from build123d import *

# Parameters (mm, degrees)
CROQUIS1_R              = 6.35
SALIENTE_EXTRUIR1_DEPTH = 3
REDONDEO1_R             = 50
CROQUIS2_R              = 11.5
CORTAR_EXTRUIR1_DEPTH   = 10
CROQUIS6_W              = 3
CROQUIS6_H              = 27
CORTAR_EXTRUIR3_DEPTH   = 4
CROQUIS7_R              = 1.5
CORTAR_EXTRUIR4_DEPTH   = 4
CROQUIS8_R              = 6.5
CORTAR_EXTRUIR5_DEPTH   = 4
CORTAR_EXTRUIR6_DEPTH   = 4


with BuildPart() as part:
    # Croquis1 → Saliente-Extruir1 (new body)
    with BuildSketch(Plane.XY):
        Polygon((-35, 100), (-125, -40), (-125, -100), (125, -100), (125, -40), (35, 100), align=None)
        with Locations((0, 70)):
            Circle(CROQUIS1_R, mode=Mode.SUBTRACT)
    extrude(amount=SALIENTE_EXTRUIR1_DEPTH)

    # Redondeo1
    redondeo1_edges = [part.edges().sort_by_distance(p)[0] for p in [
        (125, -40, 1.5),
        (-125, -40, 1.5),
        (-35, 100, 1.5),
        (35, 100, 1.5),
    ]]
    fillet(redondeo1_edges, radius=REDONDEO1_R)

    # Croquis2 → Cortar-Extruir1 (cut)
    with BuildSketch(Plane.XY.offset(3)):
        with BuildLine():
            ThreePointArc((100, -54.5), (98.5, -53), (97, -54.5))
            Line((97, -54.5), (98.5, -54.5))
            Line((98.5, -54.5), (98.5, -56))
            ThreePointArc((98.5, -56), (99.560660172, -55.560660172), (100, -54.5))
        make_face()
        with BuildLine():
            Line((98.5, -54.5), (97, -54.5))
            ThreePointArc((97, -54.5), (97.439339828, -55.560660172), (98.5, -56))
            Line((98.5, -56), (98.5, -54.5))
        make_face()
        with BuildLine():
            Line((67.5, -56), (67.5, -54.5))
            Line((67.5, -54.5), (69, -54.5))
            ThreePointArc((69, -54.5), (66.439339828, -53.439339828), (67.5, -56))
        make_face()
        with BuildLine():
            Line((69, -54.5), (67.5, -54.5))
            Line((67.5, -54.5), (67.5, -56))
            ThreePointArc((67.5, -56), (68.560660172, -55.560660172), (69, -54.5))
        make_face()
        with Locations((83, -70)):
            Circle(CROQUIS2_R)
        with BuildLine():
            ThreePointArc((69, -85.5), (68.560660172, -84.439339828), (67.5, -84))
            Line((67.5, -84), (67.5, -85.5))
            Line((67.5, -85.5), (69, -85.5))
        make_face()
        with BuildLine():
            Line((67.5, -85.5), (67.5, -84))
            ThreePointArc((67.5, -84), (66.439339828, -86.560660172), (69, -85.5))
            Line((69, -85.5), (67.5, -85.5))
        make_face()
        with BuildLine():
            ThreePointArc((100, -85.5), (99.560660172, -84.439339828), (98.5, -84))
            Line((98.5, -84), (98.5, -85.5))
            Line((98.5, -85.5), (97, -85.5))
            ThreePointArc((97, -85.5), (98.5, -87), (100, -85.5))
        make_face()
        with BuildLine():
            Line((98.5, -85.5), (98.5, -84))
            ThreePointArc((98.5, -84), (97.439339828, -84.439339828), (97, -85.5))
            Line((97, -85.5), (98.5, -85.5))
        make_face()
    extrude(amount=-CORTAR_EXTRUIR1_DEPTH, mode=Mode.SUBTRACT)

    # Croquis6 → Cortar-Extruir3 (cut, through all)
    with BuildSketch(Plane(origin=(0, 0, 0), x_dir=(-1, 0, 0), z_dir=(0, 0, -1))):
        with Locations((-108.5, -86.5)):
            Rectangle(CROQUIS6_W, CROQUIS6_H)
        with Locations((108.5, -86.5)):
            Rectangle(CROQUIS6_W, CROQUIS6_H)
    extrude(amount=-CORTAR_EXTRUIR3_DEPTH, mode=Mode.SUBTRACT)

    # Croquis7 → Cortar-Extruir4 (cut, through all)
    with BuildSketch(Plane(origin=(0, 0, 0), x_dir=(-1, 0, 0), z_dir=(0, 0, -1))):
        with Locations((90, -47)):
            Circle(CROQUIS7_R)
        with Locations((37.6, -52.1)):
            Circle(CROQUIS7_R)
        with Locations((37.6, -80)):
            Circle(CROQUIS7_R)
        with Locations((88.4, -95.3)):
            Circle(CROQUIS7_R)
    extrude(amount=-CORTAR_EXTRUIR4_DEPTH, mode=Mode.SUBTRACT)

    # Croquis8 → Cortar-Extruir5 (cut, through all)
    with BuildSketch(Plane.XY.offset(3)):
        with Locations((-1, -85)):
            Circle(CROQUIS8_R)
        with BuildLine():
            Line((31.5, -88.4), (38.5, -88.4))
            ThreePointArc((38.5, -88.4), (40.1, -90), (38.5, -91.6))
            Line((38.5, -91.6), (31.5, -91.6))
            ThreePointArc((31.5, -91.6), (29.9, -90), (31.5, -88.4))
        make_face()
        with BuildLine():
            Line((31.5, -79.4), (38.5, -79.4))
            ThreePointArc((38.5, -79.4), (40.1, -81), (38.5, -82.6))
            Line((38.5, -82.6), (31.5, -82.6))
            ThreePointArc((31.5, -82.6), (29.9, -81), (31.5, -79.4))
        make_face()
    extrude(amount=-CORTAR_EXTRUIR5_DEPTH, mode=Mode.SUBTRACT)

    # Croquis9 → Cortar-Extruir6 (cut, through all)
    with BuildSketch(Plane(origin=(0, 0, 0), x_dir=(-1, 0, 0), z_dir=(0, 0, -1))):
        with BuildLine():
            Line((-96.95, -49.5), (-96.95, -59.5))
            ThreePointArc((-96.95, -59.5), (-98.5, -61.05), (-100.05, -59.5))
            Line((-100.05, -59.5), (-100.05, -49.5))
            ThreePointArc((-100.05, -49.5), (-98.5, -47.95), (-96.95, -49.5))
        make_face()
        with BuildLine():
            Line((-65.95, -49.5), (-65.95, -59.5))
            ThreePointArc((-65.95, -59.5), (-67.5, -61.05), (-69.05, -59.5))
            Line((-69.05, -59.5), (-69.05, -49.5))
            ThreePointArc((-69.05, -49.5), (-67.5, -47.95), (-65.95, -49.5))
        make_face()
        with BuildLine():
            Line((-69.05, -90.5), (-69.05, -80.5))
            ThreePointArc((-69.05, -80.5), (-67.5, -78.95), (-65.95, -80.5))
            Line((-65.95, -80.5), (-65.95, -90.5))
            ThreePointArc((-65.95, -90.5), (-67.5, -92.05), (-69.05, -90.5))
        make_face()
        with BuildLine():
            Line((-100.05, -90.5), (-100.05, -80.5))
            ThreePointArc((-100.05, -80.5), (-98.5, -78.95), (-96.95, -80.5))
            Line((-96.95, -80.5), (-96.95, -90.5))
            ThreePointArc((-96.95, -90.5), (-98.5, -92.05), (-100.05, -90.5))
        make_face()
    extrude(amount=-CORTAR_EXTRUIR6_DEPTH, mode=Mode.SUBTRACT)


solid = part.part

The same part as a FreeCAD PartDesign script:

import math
import FreeCAD as App
import Part
import Sketcher
from FreeCAD import Vector


def edges_at(feature, points):
    """Names of the edges that pass closest to the given points."""
    edges = feature.Shape.Edges
    near = lambda p: min(range(len(edges)), key=lambda i: edges[i].distToShape(Part.Vertex(*p))[0])
    return sorted({f"Edge{near(p) + 1}" for p in points})


def add_polygon(sketch, points):
    """Adds a closed chain of lines whose ends are joined by coincident constraints."""
    first, n = sketch.GeometryCount, len(points)
    for a, b in zip(points, points[1:] + points[:1]):
        sketch.addGeometry(Part.LineSegment(App.Vector(*a, 0), App.Vector(*b, 0)), False)
    for i in range(n):
        sketch.addConstraint(Sketcher.Constraint("Coincident", first + i, 2, first + (i + 1) % n, 1))

doc = App.newDocument("Part")
body = doc.addObject("PartDesign::Body", "Body")

# Sketch on XY plane
sketch1 = body.newObject("Sketcher::SketchObject", "Sketch")
sketch1.AttachmentSupport = (doc.getObject("XY_Plane"), [""])
sketch1.MapMode = "FlatFace"
add_polygon(sketch1, [(-35, 100), (-125, -40), (-125, -100), (125, -100), (125, -40), (35, 100)])  # lines 0-5
sketch1.addGeometry(Part.Circle(Vector(0, 70, 0), Vector(0, 0, 1), 6), False)  # 6
sketch1.addConstraint(Sketcher.Constraint("Vertical", 1))
sketch1.addConstraint(Sketcher.Constraint("Horizontal", 2))
sketch1.addConstraint(Sketcher.Constraint("Vertical", 3))
sketch1.addConstraint(Sketcher.Constraint("Horizontal", 5))
sketch1.addConstraint(Sketcher.Constraint("Symmetric", 0, 2, 3, 2, -2))
sketch1.addConstraint(Sketcher.Constraint("PointOnObject", 6, 3, -2))
sketch1.addConstraint(Sketcher.Constraint("Equal", 0, 4))
sketch1.addConstraint(Sketcher.Constraint("Diameter", 6, 12.7))
sketch1.addConstraint(Sketcher.Constraint("DistanceX", 2, 1, 2, 2, 250.0))
sketch1.addConstraint(Sketcher.Constraint("DistanceX", 5, 2, 5, 1, 70.0))
sketch1.addConstraint(Sketcher.Constraint("DistanceY", 1, 2, 1, 1, 60.0))
sketch1.addConstraint(Sketcher.Constraint("DistanceY", -1, 1, 6, 3, 70.0))
sketch1.addConstraint(Sketcher.Constraint("DistanceY", 0, 2, -1, 1, 40.0))
sketch1.addConstraint(Sketcher.Constraint("DistanceY", -1, 1, 4, 2, 100.0))
pad1 = body.newObject("PartDesign::Pad", "Pad")
pad1.Profile = sketch1
pad1.Length = 3
doc.recompute()

fillet = body.newObject("PartDesign::Fillet", "Fillet")
fillet.Base = (pad1, edges_at(pad1, [
    (125, -40, 1.5),
    (-125, -40, 1.5),
    (-35, 100, 1.5),
    (35, 100, 1.5),
]))
fillet.Radius = 50

# Sketch on XY plane
sketch2 = body.newObject("Sketcher::SketchObject", "Sketch001")
sketch2.AttachmentSupport = (doc.getObject("XY_Plane"), [""])
sketch2.MapMode = "FlatFace"
sketch2.AttachmentOffset = App.Placement(Vector(0, 0, 3), App.Rotation())
sketch2.addGeometry(Part.ArcOfCircle(Part.Circle(Vector(98.5, -54.5, 0), Vector(0, 0, 1), 1.5), math.radians(0), math.radians(180)), False)
sketch2.addGeometry(Part.ArcOfCircle(Part.Circle(Vector(98.5, -54.5, 0), Vector(0, 0, 1), 1.5), math.radians(180), math.radians(270)), False)
sketch2.addGeometry(Part.ArcOfCircle(Part.Circle(Vector(98.5, -54.5, 0), Vector(0, 0, 1), 1.5), math.radians(-90), math.radians(0)), False)
sketch2.addGeometry(Part.ArcOfCircle(Part.Circle(Vector(67.5, -54.5, 0), Vector(0, 0, 1), 1.5), math.radians(0), math.radians(270)), False)
sketch2.addGeometry(Part.ArcOfCircle(Part.Circle(Vector(67.5, -54.5, 0), Vector(0, 0, 1), 1.5), math.radians(-90), math.radians(0)), False)
sketch2.addGeometry(Part.Circle(Vector(83, -70, 0), Vector(0, 0, 1), 11.5), False)
sketch2.addGeometry(Part.ArcOfCircle(Part.Circle(Vector(67.5, -85.5, 0), Vector(0, 0, 1), 1.5), math.radians(0), math.radians(90)), False)
sketch2.addGeometry(Part.ArcOfCircle(Part.Circle(Vector(67.5, -85.5, 0), Vector(0, 0, 1), 1.5), math.radians(90), math.radians(360)), False)
sketch2.addGeometry(Part.ArcOfCircle(Part.Circle(Vector(98.5, -85.5, 0), Vector(0, 0, 1), 1.5), math.radians(0), math.radians(90)), False)
sketch2.addGeometry(Part.ArcOfCircle(Part.Circle(Vector(98.5, -85.5, 0), Vector(0, 0, 1), 1.5), math.radians(90), math.radians(180)), False)
sketch2.addGeometry(Part.ArcOfCircle(Part.Circle(Vector(98.5, -85.5, 0), Vector(0, 0, 1), 1.5), math.radians(180), math.radians(360)), False)
sketch2.addConstraint(Sketcher.Constraint("Tangent", 0, 2, 1, 1))
sketch2.addConstraint(Sketcher.Constraint("Tangent", 1, 2, 2, 1))
sketch2.addConstraint(Sketcher.Constraint("Tangent", 2, 2, 0, 1))
sketch2.addConstraint(Sketcher.Constraint("Tangent", 3, 1, 4, 2))
sketch2.addConstraint(Sketcher.Constraint("Coincident", 4, 1, 3, 2))
sketch2.addConstraint(Sketcher.Constraint("Tangent", 6, 1, 7, 2))
sketch2.addConstraint(Sketcher.Constraint("Coincident", 7, 1, 6, 2))
sketch2.addConstraint(Sketcher.Constraint("Tangent", 8, 2, 9, 1))
sketch2.addConstraint(Sketcher.Constraint("Tangent", 9, 2, 10, 1))
sketch2.addConstraint(Sketcher.Constraint("Tangent", 10, 2, 8, 1))
sketch2.addConstraint(Sketcher.Constraint("Equal", 2, 3))
sketch2.addConstraint(Sketcher.Constraint("Equal", 4, 6))
sketch2.addConstraint(Sketcher.Constraint("Equal", 7, 8))
sketch2.addConstraint(Sketcher.Constraint("Horizontal", 2, 3, 3, 3))
sketch2.addConstraint(Sketcher.Constraint("Horizontal", 7, 3, 8, 3))
sketch2.addConstraint(Sketcher.Constraint("Horizontal", 4, 3, 0, 2))
sketch2.addConstraint(Sketcher.Constraint("Horizontal", 0, 2, 2, 2))
sketch2.addConstraint(Sketcher.Constraint("Horizontal", 2, 2, 3, 1))
sketch2.addConstraint(Sketcher.Constraint("Horizontal", 10, 3, 6, 1))
sketch2.addConstraint(Sketcher.Constraint("Horizontal", 6, 1, 9, 2))
sketch2.addConstraint(Sketcher.Constraint("Horizontal", 9, 2, 10, 2))
sketch2.addConstraint(Sketcher.Constraint("Vertical", 4, 3, 6, 3))
sketch2.addConstraint(Sketcher.Constraint("Vertical", 2, 3, 8, 3))
sketch2.addConstraint(Sketcher.Constraint("Vertical", 10, 3, 1, 2))
sketch2.addConstraint(Sketcher.Constraint("Vertical", 7, 3, 4, 1))
sketch2.addConstraint(Sketcher.Constraint("Vertical", 4, 1, 7, 1))
sketch2.addConstraint(Sketcher.Constraint("Vertical", 1, 2, 8, 2))
sketch2.addConstraint(Sketcher.Constraint("Diameter", 5, 23.0))
sketch2.addConstraint(Sketcher.Constraint("Radius", 0, 1.5))
sketch2.addConstraint(Sketcher.Constraint("DistanceX", -1, 1, 5, 3, 83.0))
sketch2.addConstraint(Sketcher.Constraint("DistanceY", 5, 3, -1, 1, 70.0))
sketch2.addConstraint(Sketcher.Constraint("DistanceX", -1, 1, 0, 2, 97.0))
sketch2.addConstraint(Sketcher.Constraint("DistanceY", 1, 2, -1, 1, 56.0))
sketch2.addConstraint(Sketcher.Constraint("DistanceX", -1, 1, 3, 1, 69.0))
sketch2.addConstraint(Sketcher.Constraint("DistanceY", 7, 1, -1, 1, 84.0))
pocket1 = body.newObject("PartDesign::Pocket", "Pocket")
pocket1.Profile = sketch2
pocket1.Length = 10

# Sketch on XY plane
sketch3 = body.newObject("Sketcher::SketchObject", "Sketch002")
sketch3.AttachmentSupport = (doc.getObject("XY_Plane"), [""])
sketch3.MapMode = "FlatFace"
add_polygon(sketch3, [(110, -73), (110, -100), (107, -100), (107, -73)])  # lines 0-3
add_polygon(sketch3, [(-107, -73), (-107, -100), (-110, -100), (-110, -73)])  # lines 4-7
sketch3.addConstraint(Sketcher.Constraint("Vertical", 0))
sketch3.addConstraint(Sketcher.Constraint("Horizontal", 1))
sketch3.addConstraint(Sketcher.Constraint("Vertical", 2))
sketch3.addConstraint(Sketcher.Constraint("Horizontal", 3))
sketch3.addConstraint(Sketcher.Constraint("Vertical", 4))
sketch3.addConstraint(Sketcher.Constraint("Horizontal", 5))
sketch3.addConstraint(Sketcher.Constraint("Vertical", 6))
sketch3.addConstraint(Sketcher.Constraint("Horizontal", 7))
sketch3.addConstraint(Sketcher.Constraint("Symmetric", 1, 2, 4, 2, -2))
sketch3.addConstraint(Sketcher.Constraint("Symmetric", 3, 2, 6, 2, -2))
sketch3.addConstraint(Sketcher.Constraint("DistanceX", 1, 2, 1, 1, 3.0))
sketch3.addConstraint(Sketcher.Constraint("DistanceY", 0, 2, 0, 1, 27.0))
sketch3.addConstraint(Sketcher.Constraint("DistanceX", -1, 1, 0, 2, 110.0))
sketch3.addConstraint(Sketcher.Constraint("DistanceY", 0, 2, -1, 1, 100.0))
pocket2 = body.newObject("PartDesign::Pocket", "Pocket001")
pocket2.Profile = sketch3
pocket2.Type = "ThroughAll"
pocket2.Reversed = True

# Sketch on XY plane
sketch4 = body.newObject("Sketcher::SketchObject", "Sketch003")
sketch4.AttachmentSupport = (doc.getObject("XY_Plane"), [""])
sketch4.MapMode = "FlatFace"
sketch4.addGeometry(Part.Circle(Vector(-90, -47, 0), Vector(0, 0, 1), 1.5), False)
sketch4.addGeometry(Part.Circle(Vector(-37.6, -52.1, 0), Vector(0, 0, 1), 1.5), False)
sketch4.addGeometry(Part.Circle(Vector(-37.6, -80, 0), Vector(0, 0, 1), 1.5), False)
sketch4.addGeometry(Part.Circle(Vector(-88.4, -95.3, 0), Vector(0, 0, 1), 1.5), False)
sketch4.addConstraint(Sketcher.Constraint("Equal", 0, 1))
sketch4.addConstraint(Sketcher.Constraint("Equal", 1, 2))
sketch4.addConstraint(Sketcher.Constraint("Equal", 2, 3))
sketch4.addConstraint(Sketcher.Constraint("Vertical", 1, 3, 2, 3))
sketch4.addConstraint(Sketcher.Constraint("Diameter", 0, 3.0))
sketch4.addConstraint(Sketcher.Constraint("DistanceX", 0, 3, -1, 1, 90.0))
sketch4.addConstraint(Sketcher.Constraint("DistanceY", 0, 3, -1, 1, 47.0))
sketch4.addConstraint(Sketcher.Constraint("DistanceY", 2, 3, -1, 1, 80.0))
sketch4.addConstraint(Sketcher.Constraint("DistanceX", 1, 3, -1, 1, 37.6))
sketch4.addConstraint(Sketcher.Constraint("DistanceY", 1, 3, -1, 1, 52.1))
sketch4.addConstraint(Sketcher.Constraint("DistanceX", 3, 3, -1, 1, 88.4))
sketch4.addConstraint(Sketcher.Constraint("DistanceY", 3, 3, -1, 1, 95.3))
pocket3 = body.newObject("PartDesign::Pocket", "Pocket002")
pocket3.Profile = sketch4
pocket3.Type = "ThroughAll"
pocket3.Reversed = True

# Sketch on XY plane
sketch5 = body.newObject("Sketcher::SketchObject", "Sketch004")
sketch5.AttachmentSupport = (doc.getObject("XY_Plane"), [""])
sketch5.MapMode = "FlatFace"
sketch5.AttachmentOffset = App.Placement(Vector(0, 0, 3), App.Rotation())
sketch5.addGeometry(Part.Circle(Vector(-1, -85, 0), Vector(0, 0, 1), 6.5), False)
sketch5.addGeometry(Part.LineSegment(Vector(38.5, -88.4, 0), Vector(31.5, -88.4, 0)), False)
sketch5.addGeometry(Part.ArcOfCircle(Part.Circle(Vector(31.5, -90, 0), Vector(0, 0, 1), 1.6), math.radians(90), math.radians(270)), False)
sketch5.addGeometry(Part.LineSegment(Vector(31.5, -91.6, 0), Vector(38.5, -91.6, 0)), False)
sketch5.addGeometry(Part.ArcOfCircle(Part.Circle(Vector(38.5, -90, 0), Vector(0, 0, 1), 1.6), math.radians(-90), math.radians(90)), False)
sketch5.addGeometry(Part.LineSegment(Vector(38.5, -79.4, 0), Vector(31.5, -79.4, 0)), False)
sketch5.addGeometry(Part.ArcOfCircle(Part.Circle(Vector(31.5, -81, 0), Vector(0, 0, 1), 1.6), math.radians(90), math.radians(270)), False)
sketch5.addGeometry(Part.LineSegment(Vector(31.5, -82.6, 0), Vector(38.5, -82.6, 0)), False)
sketch5.addGeometry(Part.ArcOfCircle(Part.Circle(Vector(38.5, -81, 0), Vector(0, 0, 1), 1.6), math.radians(-90), math.radians(90)), False)
sketch5.addConstraint(Sketcher.Constraint("Tangent", 1, 2, 2, 1))
sketch5.addConstraint(Sketcher.Constraint("Tangent", 2, 2, 3, 1))
sketch5.addConstraint(Sketcher.Constraint("Tangent", 3, 2, 4, 1))
sketch5.addConstraint(Sketcher.Constraint("Tangent", 4, 2, 1, 1))
sketch5.addConstraint(Sketcher.Constraint("Tangent", 5, 2, 6, 1))
sketch5.addConstraint(Sketcher.Constraint("Tangent", 6, 2, 7, 1))
sketch5.addConstraint(Sketcher.Constraint("Tangent", 7, 2, 8, 1))
sketch5.addConstraint(Sketcher.Constraint("Tangent", 8, 2, 5, 1))
sketch5.addConstraint(Sketcher.Constraint("Horizontal", 1))
sketch5.addConstraint(Sketcher.Constraint("Horizontal", 3))
sketch5.addConstraint(Sketcher.Constraint("Horizontal", 5))
sketch5.addConstraint(Sketcher.Constraint("Horizontal", 7))
sketch5.addConstraint(Sketcher.Constraint("Equal", 4, 6))
sketch5.addConstraint(Sketcher.Constraint("Vertical", 2, 3, 6, 3))
sketch5.addConstraint(Sketcher.Constraint("Vertical", 4, 3, 8, 3))
sketch5.addConstraint(Sketcher.Constraint("Diameter", 0, 13.0))
sketch5.addConstraint(Sketcher.Constraint("Radius", 2, 1.6))
sketch5.addConstraint(Sketcher.Constraint("DistanceX", 1, 2, 1, 1, 7.0))
sketch5.addConstraint(Sketcher.Constraint("DistanceX", 0, 3, -1, 1, 1.0))
sketch5.addConstraint(Sketcher.Constraint("DistanceY", 0, 3, -1, 1, 85.0))
sketch5.addConstraint(Sketcher.Constraint("DistanceY", 2, 3, -1, 1, 90.0))
sketch5.addConstraint(Sketcher.Constraint("DistanceY", 6, 3, -1, 1, 81.0))
sketch5.addConstraint(Sketcher.Constraint("DistanceX", -1, 1, 2, 3, 31.5))
pocket4 = body.newObject("PartDesign::Pocket", "Pocket003")
pocket4.Profile = sketch5
pocket4.Type = "ThroughAll"

# Sketch on XY plane
sketch6 = body.newObject("Sketcher::SketchObject", "Sketch005")
sketch6.AttachmentSupport = (doc.getObject("XY_Plane"), [""])
sketch6.MapMode = "FlatFace"
sketch6.addGeometry(Part.LineSegment(Vector(97, -59.5, 0), Vector(97, -49.5, 0)), False)
sketch6.addGeometry(Part.ArcOfCircle(Part.Circle(Vector(98.5, -49.5, 0), Vector(0, 0, 1), 1.6), math.radians(0), math.radians(180)), False)
sketch6.addGeometry(Part.LineSegment(Vector(100, -49.5, 0), Vector(100, -59.5, 0)), False)
sketch6.addGeometry(Part.ArcOfCircle(Part.Circle(Vector(98.5, -59.5, 0), Vector(0, 0, 1), 1.6), math.radians(180), math.radians(360)), False)
sketch6.addGeometry(Part.LineSegment(Vector(66, -59.5, 0), Vector(66, -49.5, 0)), False)
sketch6.addGeometry(Part.ArcOfCircle(Part.Circle(Vector(67.5, -49.5, 0), Vector(0, 0, 1), 1.6), math.radians(0), math.radians(180)), False)
sketch6.addGeometry(Part.LineSegment(Vector(69, -49.5, 0), Vector(69, -59.5, 0)), False)
sketch6.addGeometry(Part.ArcOfCircle(Part.Circle(Vector(67.5, -59.5, 0), Vector(0, 0, 1), 1.6), math.radians(180), math.radians(360)), False)
sketch6.addGeometry(Part.LineSegment(Vector(69, -80.5, 0), Vector(69, -90.5, 0)), False)
sketch6.addGeometry(Part.ArcOfCircle(Part.Circle(Vector(67.5, -90.5, 0), Vector(0, 0, 1), 1.6), math.radians(180), math.radians(360)), False)
sketch6.addGeometry(Part.LineSegment(Vector(66, -90.5, 0), Vector(66, -80.5, 0)), False)
sketch6.addGeometry(Part.ArcOfCircle(Part.Circle(Vector(67.5, -80.5, 0), Vector(0, 0, 1), 1.6), math.radians(0), math.radians(180)), False)
sketch6.addGeometry(Part.LineSegment(Vector(100, -80.5, 0), Vector(100, -90.5, 0)), False)
sketch6.addGeometry(Part.ArcOfCircle(Part.Circle(Vector(98.5, -90.5, 0), Vector(0, 0, 1), 1.6), math.radians(180), math.radians(360)), False)
sketch6.addGeometry(Part.LineSegment(Vector(97, -90.5, 0), Vector(97, -80.5, 0)), False)
sketch6.addGeometry(Part.ArcOfCircle(Part.Circle(Vector(98.5, -80.5, 0), Vector(0, 0, 1), 1.6), math.radians(0), math.radians(180)), False)
sketch6.addConstraint(Sketcher.Constraint("Tangent", 0, 2, 1, 2))
sketch6.addConstraint(Sketcher.Constraint("Tangent", 1, 1, 2, 1))
sketch6.addConstraint(Sketcher.Constraint("Tangent", 2, 2, 3, 2))
sketch6.addConstraint(Sketcher.Constraint("Tangent", 3, 1, 0, 1))
sketch6.addConstraint(Sketcher.Constraint("Tangent", 4, 2, 5, 2))
sketch6.addConstraint(Sketcher.Constraint("Tangent", 5, 1, 6, 1))
sketch6.addConstraint(Sketcher.Constraint("Tangent", 6, 2, 7, 2))
sketch6.addConstraint(Sketcher.Constraint("Tangent", 7, 1, 4, 1))
sketch6.addConstraint(Sketcher.Constraint("Tangent", 8, 2, 9, 2))
sketch6.addConstraint(Sketcher.Constraint("Tangent", 9, 1, 10, 1))
sketch6.addConstraint(Sketcher.Constraint("Tangent", 10, 2, 11, 2))
sketch6.addConstraint(Sketcher.Constraint("Tangent", 11, 1, 8, 1))
sketch6.addConstraint(Sketcher.Constraint("Tangent", 12, 2, 13, 2))
sketch6.addConstraint(Sketcher.Constraint("Tangent", 13, 1, 14, 1))
sketch6.addConstraint(Sketcher.Constraint("Tangent", 14, 2, 15, 2))
sketch6.addConstraint(Sketcher.Constraint("Tangent", 15, 1, 12, 1))
sketch6.addConstraint(Sketcher.Constraint("Vertical", 0))
sketch6.addConstraint(Sketcher.Constraint("Vertical", 2))
sketch6.addConstraint(Sketcher.Constraint("Vertical", 4))
sketch6.addConstraint(Sketcher.Constraint("Vertical", 6))
sketch6.addConstraint(Sketcher.Constraint("Vertical", 8))
sketch6.addConstraint(Sketcher.Constraint("Vertical", 10))
sketch6.addConstraint(Sketcher.Constraint("Vertical", 12))
sketch6.addConstraint(Sketcher.Constraint("Vertical", 14))
sketch6.addConstraint(Sketcher.Constraint("Equal", 3, 5))
sketch6.addConstraint(Sketcher.Constraint("Equal", 7, 9))
sketch6.addConstraint(Sketcher.Constraint("Equal", 11, 13))
sketch6.addConstraint(Sketcher.Constraint("Horizontal", 1, 3, 5, 3))
sketch6.addConstraint(Sketcher.Constraint("Horizontal", 3, 3, 7, 3))
sketch6.addConstraint(Sketcher.Constraint("Horizontal", 9, 3, 13, 3))
sketch6.addConstraint(Sketcher.Constraint("Horizontal", 11, 3, 15, 3))
sketch6.addConstraint(Sketcher.Constraint("Vertical", 7, 3, 9, 3))
sketch6.addConstraint(Sketcher.Constraint("Vertical", 3, 3, 13, 3))
sketch6.addConstraint(Sketcher.Constraint("Equal", 6, 8))
sketch6.addConstraint(Sketcher.Constraint("DistanceY", 0, 1, 0, 2, 10.0))
sketch6.addConstraint(Sketcher.Constraint("Radius", 1, 1.55))
sketch6.addConstraint(Sketcher.Constraint("DistanceX", 5, 3, 1, 3, 31.0))
sketch6.addConstraint(Sketcher.Constraint("DistanceY", 9, 3, 7, 3, 31.0))
sketch6.addConstraint(Sketcher.Constraint("DistanceX", -1, 1, 1, 3, 98.5))
sketch6.addConstraint(Sketcher.Constraint("DistanceY", 1, 3, -1, 1, 49.5))
pocket5 = body.newObject("PartDesign::Pocket", "Pocket004")
pocket5.Profile = sketch6
pocket5.Type = "ThroughAll"
pocket5.Reversed = True

doc.recompute()
